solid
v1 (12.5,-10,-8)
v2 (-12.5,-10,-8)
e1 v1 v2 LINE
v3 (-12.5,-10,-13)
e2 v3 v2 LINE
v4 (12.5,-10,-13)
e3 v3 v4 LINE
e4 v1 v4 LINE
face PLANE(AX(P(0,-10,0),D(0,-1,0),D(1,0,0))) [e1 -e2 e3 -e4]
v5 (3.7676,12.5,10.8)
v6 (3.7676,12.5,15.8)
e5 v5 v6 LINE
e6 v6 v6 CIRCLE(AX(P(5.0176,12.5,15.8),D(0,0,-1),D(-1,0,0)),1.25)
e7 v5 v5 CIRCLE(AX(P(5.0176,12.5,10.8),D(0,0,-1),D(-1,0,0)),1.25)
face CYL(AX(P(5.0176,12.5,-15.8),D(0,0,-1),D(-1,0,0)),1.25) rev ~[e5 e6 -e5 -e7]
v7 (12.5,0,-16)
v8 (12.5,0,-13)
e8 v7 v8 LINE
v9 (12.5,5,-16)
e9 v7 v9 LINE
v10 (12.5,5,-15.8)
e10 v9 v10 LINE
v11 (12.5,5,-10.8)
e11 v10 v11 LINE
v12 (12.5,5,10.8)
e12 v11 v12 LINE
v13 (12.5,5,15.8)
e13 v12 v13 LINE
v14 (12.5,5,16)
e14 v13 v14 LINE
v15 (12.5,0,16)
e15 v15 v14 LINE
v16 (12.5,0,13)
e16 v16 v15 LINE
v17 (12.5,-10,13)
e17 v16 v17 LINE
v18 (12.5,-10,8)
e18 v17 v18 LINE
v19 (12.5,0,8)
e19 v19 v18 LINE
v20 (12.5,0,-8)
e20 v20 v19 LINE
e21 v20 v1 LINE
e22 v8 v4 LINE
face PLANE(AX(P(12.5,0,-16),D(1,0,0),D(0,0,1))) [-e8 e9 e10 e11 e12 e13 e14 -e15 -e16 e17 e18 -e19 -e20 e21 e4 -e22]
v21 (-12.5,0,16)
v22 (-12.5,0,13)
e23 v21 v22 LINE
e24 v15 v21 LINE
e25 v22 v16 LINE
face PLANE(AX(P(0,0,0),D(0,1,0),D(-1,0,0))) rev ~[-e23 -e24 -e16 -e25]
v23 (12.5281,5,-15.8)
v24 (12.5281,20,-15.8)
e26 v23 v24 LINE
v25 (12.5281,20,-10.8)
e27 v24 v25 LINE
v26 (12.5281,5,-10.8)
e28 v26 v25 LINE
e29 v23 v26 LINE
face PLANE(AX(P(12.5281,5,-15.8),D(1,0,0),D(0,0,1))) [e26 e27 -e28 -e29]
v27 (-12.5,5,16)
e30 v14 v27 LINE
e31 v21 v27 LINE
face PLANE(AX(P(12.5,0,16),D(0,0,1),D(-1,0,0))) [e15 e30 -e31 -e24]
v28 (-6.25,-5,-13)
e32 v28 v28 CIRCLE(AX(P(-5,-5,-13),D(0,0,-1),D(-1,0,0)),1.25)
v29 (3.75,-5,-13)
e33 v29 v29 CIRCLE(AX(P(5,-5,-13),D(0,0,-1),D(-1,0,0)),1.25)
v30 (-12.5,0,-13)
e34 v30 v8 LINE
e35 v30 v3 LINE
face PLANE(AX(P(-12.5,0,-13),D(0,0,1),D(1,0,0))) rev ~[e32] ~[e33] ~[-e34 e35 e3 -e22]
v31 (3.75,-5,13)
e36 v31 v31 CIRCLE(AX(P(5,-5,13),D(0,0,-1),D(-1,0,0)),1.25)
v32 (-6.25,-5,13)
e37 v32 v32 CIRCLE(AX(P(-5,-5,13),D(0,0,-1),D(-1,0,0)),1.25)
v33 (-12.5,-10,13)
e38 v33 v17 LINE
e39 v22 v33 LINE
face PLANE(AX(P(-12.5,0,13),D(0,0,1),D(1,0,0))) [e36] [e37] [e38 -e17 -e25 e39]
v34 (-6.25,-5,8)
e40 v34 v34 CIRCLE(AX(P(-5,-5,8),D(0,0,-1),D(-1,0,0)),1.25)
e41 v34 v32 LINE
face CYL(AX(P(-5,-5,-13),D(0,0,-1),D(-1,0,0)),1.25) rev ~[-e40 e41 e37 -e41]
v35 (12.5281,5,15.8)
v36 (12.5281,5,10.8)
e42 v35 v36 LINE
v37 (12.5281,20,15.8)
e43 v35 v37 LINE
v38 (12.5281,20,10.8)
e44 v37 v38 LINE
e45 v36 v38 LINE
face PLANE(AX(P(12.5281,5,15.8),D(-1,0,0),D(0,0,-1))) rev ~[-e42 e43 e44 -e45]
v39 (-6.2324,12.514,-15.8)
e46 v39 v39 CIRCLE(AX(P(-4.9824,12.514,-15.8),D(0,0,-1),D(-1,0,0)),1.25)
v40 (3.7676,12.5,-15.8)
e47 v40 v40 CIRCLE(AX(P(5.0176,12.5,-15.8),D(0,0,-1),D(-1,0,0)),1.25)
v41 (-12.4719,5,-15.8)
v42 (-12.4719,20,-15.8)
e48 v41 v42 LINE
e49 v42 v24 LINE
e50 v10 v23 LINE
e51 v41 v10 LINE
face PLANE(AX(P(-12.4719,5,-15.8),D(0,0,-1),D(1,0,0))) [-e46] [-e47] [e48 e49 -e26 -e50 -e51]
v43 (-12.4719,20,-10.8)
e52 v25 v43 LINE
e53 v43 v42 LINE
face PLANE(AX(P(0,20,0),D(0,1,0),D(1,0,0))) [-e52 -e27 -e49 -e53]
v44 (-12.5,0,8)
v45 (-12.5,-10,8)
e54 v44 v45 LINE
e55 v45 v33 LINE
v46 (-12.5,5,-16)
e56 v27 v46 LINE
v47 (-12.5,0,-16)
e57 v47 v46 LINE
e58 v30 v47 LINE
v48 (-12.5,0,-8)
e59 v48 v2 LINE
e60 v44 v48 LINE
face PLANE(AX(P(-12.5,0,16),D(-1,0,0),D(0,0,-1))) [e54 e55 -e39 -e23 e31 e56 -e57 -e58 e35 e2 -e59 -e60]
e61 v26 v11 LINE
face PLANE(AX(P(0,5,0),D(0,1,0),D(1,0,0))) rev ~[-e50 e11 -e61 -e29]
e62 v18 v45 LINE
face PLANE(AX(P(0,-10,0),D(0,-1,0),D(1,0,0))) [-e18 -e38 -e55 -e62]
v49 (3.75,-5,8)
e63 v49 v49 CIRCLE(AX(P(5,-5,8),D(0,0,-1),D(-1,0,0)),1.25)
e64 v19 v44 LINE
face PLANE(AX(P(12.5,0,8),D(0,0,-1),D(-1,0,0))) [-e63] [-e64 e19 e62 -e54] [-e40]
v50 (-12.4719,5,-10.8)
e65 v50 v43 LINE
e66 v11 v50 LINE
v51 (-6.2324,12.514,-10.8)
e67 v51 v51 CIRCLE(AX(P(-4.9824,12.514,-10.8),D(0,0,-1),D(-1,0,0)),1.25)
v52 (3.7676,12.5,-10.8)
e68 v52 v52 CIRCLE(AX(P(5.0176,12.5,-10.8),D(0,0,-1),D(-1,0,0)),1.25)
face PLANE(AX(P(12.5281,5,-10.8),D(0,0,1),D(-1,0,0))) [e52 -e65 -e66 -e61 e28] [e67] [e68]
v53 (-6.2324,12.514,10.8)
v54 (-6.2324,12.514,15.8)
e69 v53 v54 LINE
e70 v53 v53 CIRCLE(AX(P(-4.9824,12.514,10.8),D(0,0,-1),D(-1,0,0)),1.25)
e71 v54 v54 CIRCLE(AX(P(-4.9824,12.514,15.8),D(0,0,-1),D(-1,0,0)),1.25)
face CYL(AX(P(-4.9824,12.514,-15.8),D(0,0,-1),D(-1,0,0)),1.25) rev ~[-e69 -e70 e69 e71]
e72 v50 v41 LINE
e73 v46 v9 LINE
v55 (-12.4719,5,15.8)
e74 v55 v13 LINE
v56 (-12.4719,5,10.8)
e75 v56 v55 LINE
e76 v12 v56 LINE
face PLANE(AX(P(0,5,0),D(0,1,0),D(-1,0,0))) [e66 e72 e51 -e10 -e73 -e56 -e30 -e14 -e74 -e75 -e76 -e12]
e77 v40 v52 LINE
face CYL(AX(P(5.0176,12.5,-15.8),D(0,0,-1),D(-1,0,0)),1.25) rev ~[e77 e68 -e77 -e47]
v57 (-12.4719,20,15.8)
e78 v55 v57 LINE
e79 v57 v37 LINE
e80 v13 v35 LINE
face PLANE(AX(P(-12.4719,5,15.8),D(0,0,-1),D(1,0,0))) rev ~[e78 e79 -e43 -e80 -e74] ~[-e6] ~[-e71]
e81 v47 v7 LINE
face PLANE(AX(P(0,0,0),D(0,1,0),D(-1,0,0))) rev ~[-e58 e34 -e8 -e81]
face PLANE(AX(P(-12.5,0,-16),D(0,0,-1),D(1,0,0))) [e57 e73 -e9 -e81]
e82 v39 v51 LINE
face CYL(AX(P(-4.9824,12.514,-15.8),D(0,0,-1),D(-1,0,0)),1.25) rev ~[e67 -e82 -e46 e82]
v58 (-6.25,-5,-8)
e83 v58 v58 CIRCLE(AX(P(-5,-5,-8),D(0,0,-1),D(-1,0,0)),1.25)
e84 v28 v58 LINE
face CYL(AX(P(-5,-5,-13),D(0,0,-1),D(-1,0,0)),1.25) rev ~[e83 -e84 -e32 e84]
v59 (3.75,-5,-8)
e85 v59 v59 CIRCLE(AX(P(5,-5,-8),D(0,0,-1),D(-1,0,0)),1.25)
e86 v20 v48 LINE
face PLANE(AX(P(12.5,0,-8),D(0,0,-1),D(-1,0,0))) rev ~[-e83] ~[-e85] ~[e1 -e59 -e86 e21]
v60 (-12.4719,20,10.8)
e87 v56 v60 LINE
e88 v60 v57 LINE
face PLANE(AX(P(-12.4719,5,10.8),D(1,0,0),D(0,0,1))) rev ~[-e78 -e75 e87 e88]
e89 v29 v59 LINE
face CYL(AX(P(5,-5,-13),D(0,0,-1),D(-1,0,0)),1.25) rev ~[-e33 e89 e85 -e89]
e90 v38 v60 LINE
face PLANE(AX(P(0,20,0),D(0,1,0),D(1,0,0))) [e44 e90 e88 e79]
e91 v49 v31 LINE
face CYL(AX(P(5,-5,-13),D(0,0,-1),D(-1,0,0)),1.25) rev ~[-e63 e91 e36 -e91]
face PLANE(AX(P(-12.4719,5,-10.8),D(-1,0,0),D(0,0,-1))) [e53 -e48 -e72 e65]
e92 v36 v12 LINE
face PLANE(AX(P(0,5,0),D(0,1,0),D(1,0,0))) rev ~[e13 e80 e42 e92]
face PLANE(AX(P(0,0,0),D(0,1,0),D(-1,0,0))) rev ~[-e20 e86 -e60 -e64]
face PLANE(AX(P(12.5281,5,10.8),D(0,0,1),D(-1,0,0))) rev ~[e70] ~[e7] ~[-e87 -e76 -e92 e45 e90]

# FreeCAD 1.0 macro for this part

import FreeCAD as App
import Part
import Sketcher


def add_polygon(sketch, points):
    """Adds a closed chain of lines whose ends are joined by coincident constraints."""
    first, n = sketch.GeometryCount, len(points)
    for a, b in zip(points, points[1:] + points[:1]):
        sketch.addGeometry(Part.LineSegment(App.Vector(*a, 0), App.Vector(*b, 0)), False)
    for i in range(n):
        sketch.addConstraint(Sketcher.Constraint("Coincident", first + i, 2, first + (i + 1) % n, 1))

doc = App.newDocument("Part")
params = doc.addObject("Spreadsheet::Sheet", "Params")
for row, (alias, value) in enumerate([
    ("sketch1_width", "25 mm"),
    ("sketch1_height", "32 mm"),
    ("pad1_length", "5 mm"),
    ("sketch2_width", "25 mm"),
    ("sketch2_height", "5 mm"),
    ("pad2_length", "15 mm"),
    ("sketch3_diameter", "2.5 mm"),
    ("pocket1_length", "31.6 mm"),
    ("sketch4_height", "5 mm"),
    ("sketch4_width", "25 mm"),
    ("pad3_length", "10 mm"),
    ("sketch5_diameter", "2.5 mm"),
    ("pocket2_length", "26 mm"),
], start=1):
    params.set(f"A{row}", alias)
    params.set(f"B{row}", "=" + value)
    params.setAlias(f"B{row}", alias)

body = doc.addObject("PartDesign::Body", "Body")

sketch1 = body.newObject("Sketcher::SketchObject", "Sketch")
sketch1.AttachmentSupport = (doc.getObject("XZ_Plane"), [""])
sketch1.MapMode = "FlatFace"
add_polygon(sketch1, [(-12, 16), (12, 16), (12, -16), (-12, -16)])
sketch1.addConstraint([
    Sketcher.Constraint("Horizontal", 0),
    Sketcher.Constraint("Vertical", 1),
    Sketcher.Constraint("Horizontal", 2),
    Sketcher.Constraint("Vertical", 3),
    Sketcher.Constraint("Symmetric", 0, 2, 2, 2, -1, 1),
    Sketcher.Constraint("DistanceX", 0, 1, 0, 2, 25.0),
    Sketcher.Constraint("DistanceY", 1, 2, 1, 1, 32.0),
])
sketch1.setExpression("Constraints[9]", "Params.sketch1_width")
sketch1.setExpression("Constraints[10]", "Params.sketch1_height")
pad1 = body.newObject("PartDesign::Pad", "Pad")
pad1.Profile = sketch1
pad1.setExpression("Length", "Params.pad1_length")
pad1.Reversed = True

sketch2 = body.newObject("Sketcher::SketchObject", "Sketch001")
sketch2.AttachmentSupport = (doc.getObject("XZ_Plane"), [""])
sketch2.MapMode = "FlatFace"
sketch2.AttachmentOffset = App.Placement(App.Vector(0, 0, -5), App.Rotation())
add_polygon(sketch2, [(-12, 11), (-12, 16), (13, 16), (13, 11)])
add_polygon(sketch2, [(13, -16), (-12, -16), (-12, -11), (13, -11)])
sketch2.addConstraint([
    Sketcher.Constraint("Vertical", 0),
    Sketcher.Constraint("Horizontal", 1),
    Sketcher.Constraint("Vertical", 2),
    Sketcher.Constraint("Horizontal", 3),
    Sketcher.Constraint("Horizontal", 4),
    Sketcher.Constraint("Vertical", 5),
    Sketcher.Constraint("Horizontal", 6),
    Sketcher.Constraint("Vertical", 7),
    Sketcher.Constraint("Symmetric", 0, 2, 4, 2, -1),
    Sketcher.Constraint("Symmetric", 2, 2, 6, 2, -1),
    Sketcher.Constraint("DistanceX", 1, 1, 1, 2, 25.0),
    Sketcher.Constraint("DistanceY", 0, 1, 0, 2, 5.0),
    Sketcher.Constraint("DistanceY", 5, 2, 3, 2, 21.6),
    Sketcher.Constraint("DistanceX", 0, 2, -1, 1, 12.472),
])
sketch2.setExpression("Constraints[18]", "Params.sketch2_width")
sketch2.setExpression("Constraints[19]", "Params.sketch2_height")
pad2 = body.newObject("PartDesign::Pad", "Pad001")
pad2.Profile = sketch2
pad2.setExpression("Length", "Params.pad2_length")
pad2.Reversed = True

sketch3 = body.newObject("Sketcher::SketchObject", "Sketch002")
sketch3.AttachmentSupport = (doc.getObject("XY_Plane"), [""])
sketch3.MapMode = "FlatFace"
sketch3.AttachmentOffset = App.Placement(App.Vector(0, 0, -15.8), App.Rotation())
sketch3.addGeometry([
    Part.Circle(App.Vector(5, 12.5, 0), App.Vector(0, 0, 1), 1.2),
    Part.Circle(App.Vector(-5, 12.5, 0), App.Vector(0, 0, 1), 1.2),
], False)
sketch3.addConstraint([
    Sketcher.Constraint("Equal", 0, 1),
    Sketcher.Constraint("Diameter", 0, 2.5),
    Sketcher.Constraint("DistanceX", 1, 3, 0, 3, 10.0),
    Sketcher.Constraint("DistanceY", -1, 1, 0, 3, 12.5),
    Sketcher.Constraint("DistanceY", -1, 1, 1, 3, 12.514),
    Sketcher.Constraint("DistanceX", -1, 1, 0, 3, 5.0176),
])
sketch3.setExpression("Constraints[1]", "Params.sketch3_diameter")
pocket1 = body.newObject("PartDesign::Pocket", "Pocket")
pocket1.Profile = sketch3
pocket1.setExpression("Length", "Params.pocket1_length")
pocket1.Reversed = True

sketch4 = body.newObject("Sketcher::SketchObject", "Sketch003")
sketch4.AttachmentSupport = (doc.getObject("XZ_Plane"), [""])
sketch4.MapMode = "FlatFace"
add_polygon(sketch4, [(-12, -8), (-12, -13), (12, -13), (12, -8)])
add_polygon(sketch4, [(-12, 13), (-12, 8), (12, 8), (12, 13)])
sketch4.addConstraint([
    Sketcher.Constraint("Vertical", 0),
    Sketcher.Constraint("Horizontal", 1),
    Sketcher.Constraint("Vertical", 2),
    Sketcher.Constraint("Horizontal", 3),
    Sketcher.Constraint("Vertical", 4),
    Sketcher.Constraint("Horizontal", 5),
    Sketcher.Constraint("Vertical", 6),
    Sketcher.Constraint("Horizontal", 7),
    Sketcher.Constraint("Symmetric", 2, 2, 4, 2, -1, 1),
    Sketcher.Constraint("Symmetric", 0, 2, 6, 2, -1, 1),
    Sketcher.Constraint("Vertical", 3, 2, 4, 2),
    Sketcher.Constraint("DistanceY", 0, 2, 0, 1, 5.0),
    Sketcher.Constraint("DistanceY", 2, 2, -1, 1, 8.0),
    Sketcher.Constraint("DistanceX", 1, 1, 1, 2, 25.0),
])
sketch4.setExpression("Constraints[19]", "Params.sketch4_height")
sketch4.setExpression("Constraints[21]", "Params.sketch4_width")
pad3 = body.newObject("PartDesign::Pad", "Pad002")
pad3.Profile = sketch4
pad3.setExpression("Length", "Params.pad3_length")

sketch5 = body.newObject("Sketcher::SketchObject", "Sketch004")
sketch5.AttachmentSupport = (doc.getObject("XY_Plane"), [""])
sketch5.MapMode = "FlatFace"
sketch5.AttachmentOffset = App.Placement(App.Vector(0, 0, -13), App.Rotation())
sketch5.addGeometry([
    Part.Circle(App.Vector(-5, -5, 0), App.Vector(0, 0, 1), 1.2),
    Part.Circle(App.Vector(5, -5, 0), App.Vector(0, 0, 1), 1.2),
], False)
sketch5.addConstraint([
    Sketcher.Constraint("Equal", 0, 1),
    Sketcher.Constraint("Symmetric", 0, 3, 1, 3, -2),
    Sketcher.Constraint("Diameter", 0, 2.5),
    Sketcher.Constraint("DistanceX", 0, 3, -1, 1, 5.0),
    Sketcher.Constraint("DistanceY", 0, 3, -1, 1, 5.0),
])
sketch5.setExpression("Constraints[2]", "Params.sketch5_diameter")
pocket2 = body.newObject("PartDesign::Pocket", "Pocket001")
pocket2.Profile = sketch5
pocket2.setExpression("Length", "Params.pocket2_length")
pocket2.Reversed = True

doc.recompute()
